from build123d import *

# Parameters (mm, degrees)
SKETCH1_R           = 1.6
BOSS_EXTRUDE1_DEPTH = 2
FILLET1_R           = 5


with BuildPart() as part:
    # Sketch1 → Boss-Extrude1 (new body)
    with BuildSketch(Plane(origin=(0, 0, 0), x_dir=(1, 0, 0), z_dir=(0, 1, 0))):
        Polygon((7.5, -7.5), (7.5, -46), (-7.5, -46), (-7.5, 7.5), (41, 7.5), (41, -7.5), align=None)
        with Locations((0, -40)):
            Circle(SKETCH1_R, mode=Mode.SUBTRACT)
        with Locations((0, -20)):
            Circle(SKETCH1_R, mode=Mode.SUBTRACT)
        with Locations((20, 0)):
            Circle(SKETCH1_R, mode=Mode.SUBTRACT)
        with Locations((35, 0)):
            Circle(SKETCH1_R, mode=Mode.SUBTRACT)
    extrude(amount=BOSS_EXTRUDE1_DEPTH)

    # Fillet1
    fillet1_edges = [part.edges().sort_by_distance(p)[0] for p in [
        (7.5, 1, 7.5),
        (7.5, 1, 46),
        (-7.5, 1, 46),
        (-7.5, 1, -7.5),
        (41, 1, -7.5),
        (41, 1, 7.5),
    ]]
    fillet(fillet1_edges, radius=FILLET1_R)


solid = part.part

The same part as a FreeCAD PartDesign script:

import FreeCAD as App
import Part
import Sketcher


def edges_at(feature, points):
    """Names of the edges that pass closest to the given points."""
    edges = feature.Shape.Edges
    near = lambda p: min(range(len(edges)), key=lambda i: edges[i].distToShape(Part.Vertex(*p))[0])
    return sorted({f"Edge{near(p) + 1}" for p in points})


def add_polygon(sketch, points):
    """Adds a closed chain of lines whose ends are joined by coincident constraints."""
    first, n = sketch.GeometryCount, len(points)
    for a, b in zip(points, points[1:] + points[:1]):
        sketch.addGeometry(Part.LineSegment(App.Vector(*a, 0), App.Vector(*b, 0)), False)
    for i in range(n):
        sketch.addConstraint(Sketcher.Constraint("Coincident", first + i, 2, first + (i + 1) % n, 1))

doc = App.newDocument("Part")
body = doc.addObject("PartDesign::Body", "Body")

# Sketch on XZ plane
sketch1 = doc.addObject("Sketcher::SketchObject", "Sketch")
body.addObject(sketch1)
sketch1.AttachmentSupport = (doc.XZ_Plane, [""])
sketch1.MapMode = "FlatFace"
add_polygon(sketch1, [(7.5, 46), (7.5, 7.5), (41, 7.5), (41, -7.5), (-7.5, -7.5), (-7.5, 46)])  # lines 0-5
sketch1.addGeometry(Part.Circle(App.Vector(0, 40, 0), App.Vector(0, 0, 1), 1.6), False)  # 6
sketch1.addGeometry(Part.Circle(App.Vector(35, 0, 0), App.Vector(0, 0, 1), 1.6), False)  # 7
sketch1.addGeometry(Part.Circle(App.Vector(20, 0, 0), App.Vector(0, 0, 1), 1.6), False)  # 8
sketch1.addGeometry(Part.Circle(App.Vector(0, 20, 0), App.Vector(0, 0, 1), 1.6), False)  # 9
sketch1.addConstraint(Sketcher.Constraint("Vertical", 0))
sketch1.addConstraint(Sketcher.Constraint("Horizontal", 1))
sketch1.addConstraint(Sketcher.Constraint("Vertical", 2))
sketch1.addConstraint(Sketcher.Constraint("Horizontal", 3))
sketch1.addConstraint(Sketcher.Constraint("Vertical", 4))
sketch1.addConstraint(Sketcher.Constraint("Horizontal", 5))
sketch1.addConstraint(Sketcher.Constraint("Equal", 6, 7))
sketch1.addConstraint(Sketcher.Constraint("Equal", 7, 8))
sketch1.addConstraint(Sketcher.Constraint("Equal", 8, 9))
sketch1.addConstraint(Sketcher.Constraint("Symmetric", 0, 2, 3, 2, -1, 1))
sketch1.addConstraint(Sketcher.Constraint("PointOnObject", 6, 3, -2))
sketch1.addConstraint(Sketcher.Constraint("PointOnObject", 7, 3, -1))
sketch1.addConstraint(Sketcher.Constraint("PointOnObject", 8, 3, -1))
sketch1.addConstraint(Sketcher.Constraint("PointOnObject", 9, 3, -2))
sketch1.addConstraint(Sketcher.Constraint("Equal", 5, 2))
sketch1.addConstraint(Sketcher.Constraint("Diameter", 6, 3.2))
sketch1.addConstraint(Sketcher.Constraint("DistanceX", 5, 1, 5, 2, 15.0))
sketch1.addConstraint(Sketcher.Constraint("DistanceX", 1, 1, 1, 2, 33.5))
sketch1.addConstraint(Sketcher.Constraint("DistanceY", 0, 2, 0, 1, 38.5))
sketch1.addConstraint(Sketcher.Constraint("DistanceY", -1, 1, 6, 3, 40.0))
sketch1.addConstraint(Sketcher.Constraint("DistanceX", -1, 1, 7, 3, 35.0))
sketch1.addConstraint(Sketcher.Constraint("DistanceX", -1, 1, 8, 3, 20.0))
sketch1.addConstraint(Sketcher.Constraint("DistanceY", -1, 1, 9, 3, 20.0))
pad1 = doc.addObject("PartDesign::Pad", "Pad")
body.addObject(pad1)
pad1.Profile = sketch1
pad1.Length = 2
pad1.Reversed = True
doc.recompute()

fillet = doc.addObject("PartDesign::Fillet", "Fillet")
body.addObject(fillet)
fillet.Base = (pad1, edges_at(pad1, [
    (7.5, 1, 7.5),
    (7.5, 1, 46),
    (-7.5, 1, 46),
    (-7.5, 1, -7.5),
    (41, 1, -7.5),
    (41, 1, 7.5),
]))
fillet.Radius = 5

doc.recompute()
